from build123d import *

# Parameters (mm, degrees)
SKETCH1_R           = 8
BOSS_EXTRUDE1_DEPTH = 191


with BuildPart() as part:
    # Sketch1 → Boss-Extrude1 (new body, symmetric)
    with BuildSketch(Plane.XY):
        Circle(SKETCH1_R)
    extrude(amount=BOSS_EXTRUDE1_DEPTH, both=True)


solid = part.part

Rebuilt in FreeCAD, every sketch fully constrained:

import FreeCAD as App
import Part
import Sketcher

doc = App.newDocument("Part")
body = doc.addObject("PartDesign::Body", "Body")

# Sketch on XY plane
sketch1 = body.newObject("Sketcher::SketchObject", "Sketch")
sketch1.AttachmentSupport = (doc.getObject("XY_Plane"), [""])
sketch1.MapMode = "FlatFace"
sketch1.addGeometry(Part.Circle(App.Vector(0, 0, 0), App.Vector(0, 0, 1), 8), False)
sketch1.addConstraint([
    Sketcher.Constraint("Coincident", 0, 3, -1, 1),
    Sketcher.Constraint("Diameter", 0, 16.0),
])
pad1 = body.newObject("PartDesign::Pad", "Pad")
pad1.Profile = sketch1
pad1.Length = 382
pad1.Midplane = True

doc.recompute()
